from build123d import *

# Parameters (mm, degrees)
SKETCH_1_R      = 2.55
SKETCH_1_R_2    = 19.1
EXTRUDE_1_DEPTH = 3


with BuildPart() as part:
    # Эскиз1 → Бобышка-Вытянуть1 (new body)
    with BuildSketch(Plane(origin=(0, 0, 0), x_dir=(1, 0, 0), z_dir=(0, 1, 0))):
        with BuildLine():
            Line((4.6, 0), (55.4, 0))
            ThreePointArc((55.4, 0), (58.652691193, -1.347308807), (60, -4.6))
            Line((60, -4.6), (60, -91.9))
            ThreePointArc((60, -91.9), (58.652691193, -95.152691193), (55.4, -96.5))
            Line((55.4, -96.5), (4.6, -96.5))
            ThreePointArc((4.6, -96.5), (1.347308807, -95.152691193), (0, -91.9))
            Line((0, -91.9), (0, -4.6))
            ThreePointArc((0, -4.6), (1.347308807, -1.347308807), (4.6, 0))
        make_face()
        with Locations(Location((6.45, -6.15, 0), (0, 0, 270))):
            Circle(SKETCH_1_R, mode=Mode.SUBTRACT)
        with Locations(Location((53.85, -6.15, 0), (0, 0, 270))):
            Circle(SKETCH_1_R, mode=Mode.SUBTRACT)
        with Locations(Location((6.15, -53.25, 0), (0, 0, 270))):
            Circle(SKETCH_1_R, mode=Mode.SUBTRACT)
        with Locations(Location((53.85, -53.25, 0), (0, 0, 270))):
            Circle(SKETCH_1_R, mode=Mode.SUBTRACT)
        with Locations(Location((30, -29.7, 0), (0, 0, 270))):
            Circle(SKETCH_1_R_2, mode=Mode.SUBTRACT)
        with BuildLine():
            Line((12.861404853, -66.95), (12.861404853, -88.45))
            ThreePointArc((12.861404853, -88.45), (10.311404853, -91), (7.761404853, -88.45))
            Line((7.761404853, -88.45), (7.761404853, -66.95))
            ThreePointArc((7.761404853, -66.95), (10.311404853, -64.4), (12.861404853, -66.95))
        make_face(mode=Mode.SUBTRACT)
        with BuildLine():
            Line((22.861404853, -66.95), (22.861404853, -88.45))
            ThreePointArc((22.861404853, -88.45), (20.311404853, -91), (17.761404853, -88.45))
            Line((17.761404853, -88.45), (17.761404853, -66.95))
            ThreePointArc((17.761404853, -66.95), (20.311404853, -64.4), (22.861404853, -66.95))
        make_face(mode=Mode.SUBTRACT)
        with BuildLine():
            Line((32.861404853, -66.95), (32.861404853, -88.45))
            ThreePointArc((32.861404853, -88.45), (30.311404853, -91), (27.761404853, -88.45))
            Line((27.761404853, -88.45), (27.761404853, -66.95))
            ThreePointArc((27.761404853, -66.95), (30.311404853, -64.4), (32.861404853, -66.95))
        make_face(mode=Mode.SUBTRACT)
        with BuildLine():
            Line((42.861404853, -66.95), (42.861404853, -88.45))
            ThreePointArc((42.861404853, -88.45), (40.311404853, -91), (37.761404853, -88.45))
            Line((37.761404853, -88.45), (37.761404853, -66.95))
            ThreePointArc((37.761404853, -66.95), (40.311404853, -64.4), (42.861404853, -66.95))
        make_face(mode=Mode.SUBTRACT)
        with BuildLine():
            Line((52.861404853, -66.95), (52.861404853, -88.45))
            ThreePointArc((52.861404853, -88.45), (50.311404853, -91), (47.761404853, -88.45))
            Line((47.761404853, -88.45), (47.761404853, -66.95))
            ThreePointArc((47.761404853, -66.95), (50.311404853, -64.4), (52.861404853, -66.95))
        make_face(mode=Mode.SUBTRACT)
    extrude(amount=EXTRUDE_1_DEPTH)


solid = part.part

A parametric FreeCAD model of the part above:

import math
import FreeCAD as App
import Part
import Sketcher

V = App.Vector

doc = App.newDocument("Part")
params = doc.addObject("Spreadsheet::Sheet", "Params")
for row, (alias, value) in enumerate([
    ("sketch1_diameter", "5.1 mm"),
    ("sketch1_diameter2", "38.2 mm"),
    ("sketch1_radius", "4.6 mm"),
    ("sketch1_width", "50.8 mm"),
    ("sketch1_height", "87.3 mm"),
    ("pad1_length", "3 mm"),
], start=1):
    params.set(f"A{row}", alias)
    params.set(f"B{row}", "=" + value)
    params.setAlias(f"B{row}", alias)

body = doc.addObject("PartDesign::Body", "Body")

sketch1 = body.newObject("Sketcher::SketchObject", "Sketch")
sketch1.AttachmentSupport = (doc.getObject("XZ_Plane"), [""])
sketch1.MapMode = "FlatFace"
sketch1.addGeometry(Part.LineSegment(V(55.4, 0, 0), V(4.6, 0, 0)), False)
sketch1.addGeometry(Part.ArcOfCircle(Part.Circle(V(4.6, 4.6, 0), V(0, 0, 1), 4.6), math.radians(-180), math.radians(-90)), False)
sketch1.addGeometry(Part.LineSegment(V(0, 4.6, 0), V(0, 91.9, 0)), False)
sketch1.addGeometry(Part.ArcOfCircle(Part.Circle(V(4.6, 91.9, 0), V(0, 0, 1), 4.6), math.radians(90), math.radians(180)), False)
sketch1.addGeometry(Part.LineSegment(V(4.6, 96.5, 0), V(55.4, 96.5, 0)), False)
sketch1.addGeometry(Part.ArcOfCircle(Part.Circle(V(55.4, 91.9, 0), V(0, 0, 1), 4.6), math.radians(0), math.radians(90)), False)
sketch1.addGeometry(Part.LineSegment(V(60, 91.9, 0), V(60, 4.6, 0)), False)
sketch1.addGeometry(Part.ArcOfCircle(Part.Circle(V(55.4, 4.6, 0), V(0, 0, 1), 4.6), math.radians(-90), math.radians(0)), False)
sketch1.addGeometry(Part.LineSegment(V(52.9, 67, 0), V(52.9, 88.5, 0)), False)
sketch1.addGeometry(Part.ArcOfCircle(Part.Circle(V(50.3, 88.5, 0), V(0, 0, 1), 2.5), math.radians(0), math.radians(180)), False)
sketch1.addGeometry(Part.LineSegment(V(47.8, 88.5, 0), V(47.8, 67, 0)), False)
sketch1.addGeometry(Part.ArcOfCircle(Part.Circle(V(50.3, 67, 0), V(0, 0, 1), 2.5), math.radians(180), math.radians(360)), False)
sketch1.addGeometry(Part.LineSegment(V(42.9, 67, 0), V(42.9, 88.5, 0)), False)
sketch1.addGeometry(Part.ArcOfCircle(Part.Circle(V(40.3, 88.5, 0), V(0, 0, 1), 2.5), math.radians(0), math.radians(180)), False)
sketch1.addGeometry(Part.LineSegment(V(37.8, 88.5, 0), V(37.8, 67, 0)), False)
sketch1.addGeometry(Part.ArcOfCircle(Part.Circle(V(40.3, 67, 0), V(0, 0, 1), 2.5), math.radians(180), math.radians(360)), False)
sketch1.addGeometry(Part.LineSegment(V(32.9, 67, 0), V(32.9, 88.5, 0)), False)
sketch1.addGeometry(Part.ArcOfCircle(Part.Circle(V(30.3, 88.5, 0), V(0, 0, 1), 2.5), math.radians(0), math.radians(180)), False)
sketch1.addGeometry(Part.LineSegment(V(27.8, 88.5, 0), V(27.8, 67, 0)), False)
sketch1.addGeometry(Part.ArcOfCircle(Part.Circle(V(30.3, 67, 0), V(0, 0, 1), 2.5), math.radians(180), math.radians(360)), False)
sketch1.addGeometry(Part.Circle(V(53.9, 53.2, 0), V(0, 0, 1), 2.5), False)
sketch1.addGeometry(Part.LineSegment(V(22.9, 67, 0), V(22.9, 88.5, 0)), False)
sketch1.addGeometry(Part.ArcOfCircle(Part.Circle(V(20.3, 88.5, 0), V(0, 0, 1), 2.5), math.radians(0), math.radians(180)), False)
sketch1.addGeometry(Part.LineSegment(V(17.8, 88.5, 0), V(17.8, 67, 0)), False)
sketch1.addGeometry(Part.ArcOfCircle(Part.Circle(V(20.3, 67, 0), V(0, 0, 1), 2.5), math.radians(180), math.radians(360)), False)
sketch1.addGeometry(Part.LineSegment(V(12.9, 67, 0), V(12.9, 88.5, 0)), False)
sketch1.addGeometry(Part.ArcOfCircle(Part.Circle(V(10.3, 88.5, 0), V(0, 0, 1), 2.5), math.radians(0), math.radians(180)), False)
sketch1.addGeometry(Part.LineSegment(V(7.8, 88.5, 0), V(7.8, 67, 0)), False)
sketch1.addGeometry(Part.ArcOfCircle(Part.Circle(V(10.3, 67, 0), V(0, 0, 1), 2.5), math.radians(180), math.radians(360)), False)
sketch1.addGeometry(Part.Circle(V(6.2, 53.2, 0), V(0, 0, 1), 2.5), False)
sketch1.addGeometry(Part.Circle(V(53.9, 6.2, 0), V(0, 0, 1), 2.5), False)
sketch1.addGeometry(Part.Circle(V(30, 29.7, 0), V(0, 0, 1), 19.1), False)
sketch1.addGeometry(Part.Circle(V(6.5, 6.2, 0), V(0, 0, 1), 2.5), False)
sketch1.addConstraint(Sketcher.Constraint("Tangent", 0, 2, 1, 2))
sketch1.addConstraint(Sketcher.Constraint("Tangent", 1, 1, 2, 1))
sketch1.addConstraint(Sketcher.Constraint("Tangent", 2, 2, 3, 2))
sketch1.addConstraint(Sketcher.Constraint("Tangent", 3, 1, 4, 1))
sketch1.addConstraint(Sketcher.Constraint("Tangent", 4, 2, 5, 2))
sketch1.addConstraint(Sketcher.Constraint("Tangent", 5, 1, 6, 1))
sketch1.addConstraint(Sketcher.Constraint("Tangent", 6, 2, 7, 2))
sketch1.addConstraint(Sketcher.Constraint("Tangent", 7, 1, 0, 1))
sketch1.addConstraint(Sketcher.Constraint("Tangent", 8, 2, 9, 1))
sketch1.addConstraint(Sketcher.Constraint("Tangent", 9, 2, 10, 1))
sketch1.addConstraint(Sketcher.Constraint("Tangent", 10, 2, 11, 1))
sketch1.addConstraint(Sketcher.Constraint("Tangent", 11, 2, 8, 1))
sketch1.addConstraint(Sketcher.Constraint("Tangent", 12, 2, 13, 1))
sketch1.addConstraint(Sketcher.Constraint("Tangent", 13, 2, 14, 1))
sketch1.addConstraint(Sketcher.Constraint("Tangent", 14, 2, 15, 1))
sketch1.addConstraint(Sketcher.Constraint("Tangent", 15, 2, 12, 1))
sketch1.addConstraint(Sketcher.Constraint("Tangent", 16, 2, 17, 1))
sketch1.addConstraint(Sketcher.Constraint("Tangent", 17, 2, 18, 1))
sketch1.addConstraint(Sketcher.Constraint("Tangent", 18, 2, 19, 1))
sketch1.addConstraint(Sketcher.Constraint("Tangent", 19, 2, 16, 1))
sketch1.addConstraint(Sketcher.Constraint("Tangent", 21, 2, 22, 1))
sketch1.addConstraint(Sketcher.Constraint("Tangent", 22, 2, 23, 1))
sketch1.addConstraint(Sketcher.Constraint("Tangent", 23, 2, 24, 1))
sketch1.addConstraint(Sketcher.Constraint("Tangent", 24, 2, 21, 1))
sketch1.addConstraint(Sketcher.Constraint("Tangent", 25, 2, 26, 1))
sketch1.addConstraint(Sketcher.Constraint("Tangent", 26, 2, 27, 1))
sketch1.addConstraint(Sketcher.Constraint("Tangent", 27, 2, 28, 1))
sketch1.addConstraint(Sketcher.Constraint("Tangent", 28, 2, 25, 1))
sketch1.addConstraint(Sketcher.Constraint("Horizontal", 0))
sketch1.addConstraint(Sketcher.Constraint("Vertical", 2))
sketch1.addConstraint(Sketcher.Constraint("Horizontal", 4))
sketch1.addConstraint(Sketcher.Constraint("Vertical", 6))
sketch1.addConstraint(Sketcher.Constraint("Vertical", 8))
sketch1.addConstraint(Sketcher.Constraint("Vertical", 10))
sketch1.addConstraint(Sketcher.Constraint("Vertical", 12))
sketch1.addConstraint(Sketcher.Constraint("Vertical", 14))
sketch1.addConstraint(Sketcher.Constraint("Vertical", 16))
sketch1.addConstraint(Sketcher.Constraint("Vertical", 18))
sketch1.addConstraint(Sketcher.Constraint("Vertical", 21))
sketch1.addConstraint(Sketcher.Constraint("Vertical", 23))
sketch1.addConstraint(Sketcher.Constraint("Vertical", 25))
sketch1.addConstraint(Sketcher.Constraint("Vertical", 27))
sketch1.addConstraint(Sketcher.Constraint("Equal", 1, 3))
sketch1.addConstraint(Sketcher.Constraint("Equal", 3, 5))
sketch1.addConstraint(Sketcher.Constraint("Equal", 5, 7))
sketch1.addConstraint(Sketcher.Constraint("Equal", 11, 13))
sketch1.addConstraint(Sketcher.Constraint("Equal", 15, 17))
sketch1.addConstraint(Sketcher.Constraint("Equal", 19, 20))
sketch1.addConstraint(Sketcher.Constraint("Equal", 20, 22))
sketch1.addConstraint(Sketcher.Constraint("Equal", 24, 26))
sketch1.addConstraint(Sketcher.Constraint("Equal", 28, 29))
sketch1.addConstraint(Sketcher.Constraint("Equal", 29, 30))
sketch1.addConstraint(Sketcher.Constraint("Equal", 30, 32))
sketch1.addConstraint(Sketcher.Constraint("PointOnObject", 0, 2, -1))
sketch1.addConstraint(Sketcher.Constraint("PointOnObject", 1, 1, -2))
sketch1.addConstraint(Sketcher.Constraint("Horizontal", 9, 3, 13, 3))
sketch1.addConstraint(Sketcher.Constraint("Horizontal", 11, 3, 15, 3))
sketch1.addConstraint(Sketcher.Constraint("Horizontal", 13, 3, 17, 3))
sketch1.addConstraint(Sketcher.Constraint("Horizontal", 15, 3, 19, 3))
sketch1.addConstraint(Sketcher.Constraint("Horizontal", 17, 3, 22, 3))
sketch1.addConstraint(Sketcher.Constraint("Horizontal", 19, 3, 24, 3))
sketch1.addConstraint(Sketcher.Constraint("Horizontal", 22, 3, 26, 3))
sketch1.addConstraint(Sketcher.Constraint("Horizontal", 24, 3, 28, 3))
sketch1.addConstraint(Sketcher.Constraint("Horizontal", 20, 3, 29, 3))
sketch1.addConstraint(Sketcher.Constraint("Horizontal", 30, 3, 32, 3))
sketch1.addConstraint(Sketcher.Constraint("Vertical", 20, 3, 30, 3))
sketch1.addConstraint(Sketcher.Constraint("Diameter", 20, 5.1))
sketch1.addConstraint(Sketcher.Constraint("Diameter", 31, 38.2))
sketch1.addConstraint(Sketcher.Constraint("Radius", 1, 4.6))
sketch1.addConstraint(Sketcher.Constraint("DistanceX", 0, 2, 0, 1, 50.8))
sketch1.addConstraint(Sketcher.Constraint("DistanceY", 2, 1, 2, 2, 87.3))
sketch1.addConstraint(Sketcher.Constraint("DistanceY", 8, 1, 8, 2, 21.5))
sketch1.addConstraint(Sketcher.Constraint("DistanceX", -1, 1, 31, 3, 30.0))
sketch1.addConstraint(Sketcher.Constraint("DistanceX", 13, 3, 9, 3, 10.0))
sketch1.addConstraint(Sketcher.Constraint("DistanceX", 17, 3, 13, 3, 10.0))
sketch1.addConstraint(Sketcher.Constraint("DistanceX", 22, 3, 17, 3, 10.0))
sketch1.addConstraint(Sketcher.Constraint("DistanceX", 26, 3, 22, 3, 10.0))
sketch1.addConstraint(Sketcher.Constraint("DistanceY", -1, 1, 31, 3, 29.7))
sketch1.addConstraint(Sketcher.Constraint("DistanceY", 20, 3, 11, 3, 13.7))
sketch1.addConstraint(Sketcher.Constraint("DistanceY", 30, 3, 20, 3, 47.1))
sketch1.addConstraint(Sketcher.Constraint("DistanceX", 29, 3, 32, 3, 0.3))
sketch1.addConstraint(Sketcher.Constraint("DistanceX", 32, 3, 30, 3, 47.4))
sketch1.addConstraint(Sketcher.Constraint("DistanceY", -1, 1, 9, 3, 88.45))
sketch1.addConstraint(Sketcher.Constraint("DistanceX", -1, 1, 20, 3, 53.85))
sketch1.addConstraint(Sketcher.Constraint("DistanceX", -1, 1, 9, 3, 50.311405))
sketch1.setExpression("Constraints[66]", "Params.sketch1_diameter")
sketch1.setExpression("Constraints[67]", "Params.sketch1_diameter2")
sketch1.setExpression("Constraints[68]", "Params.sketch1_radius")
sketch1.setExpression("Constraints[69]", "Params.sketch1_width")
sketch1.setExpression("Constraints[70]", "Params.sketch1_height")
pad1 = body.newObject("PartDesign::Pad", "Pad")
pad1.Profile = sketch1
pad1.setExpression("Length", "Params.pad1_length")
pad1.Reversed = True

doc.recompute()
